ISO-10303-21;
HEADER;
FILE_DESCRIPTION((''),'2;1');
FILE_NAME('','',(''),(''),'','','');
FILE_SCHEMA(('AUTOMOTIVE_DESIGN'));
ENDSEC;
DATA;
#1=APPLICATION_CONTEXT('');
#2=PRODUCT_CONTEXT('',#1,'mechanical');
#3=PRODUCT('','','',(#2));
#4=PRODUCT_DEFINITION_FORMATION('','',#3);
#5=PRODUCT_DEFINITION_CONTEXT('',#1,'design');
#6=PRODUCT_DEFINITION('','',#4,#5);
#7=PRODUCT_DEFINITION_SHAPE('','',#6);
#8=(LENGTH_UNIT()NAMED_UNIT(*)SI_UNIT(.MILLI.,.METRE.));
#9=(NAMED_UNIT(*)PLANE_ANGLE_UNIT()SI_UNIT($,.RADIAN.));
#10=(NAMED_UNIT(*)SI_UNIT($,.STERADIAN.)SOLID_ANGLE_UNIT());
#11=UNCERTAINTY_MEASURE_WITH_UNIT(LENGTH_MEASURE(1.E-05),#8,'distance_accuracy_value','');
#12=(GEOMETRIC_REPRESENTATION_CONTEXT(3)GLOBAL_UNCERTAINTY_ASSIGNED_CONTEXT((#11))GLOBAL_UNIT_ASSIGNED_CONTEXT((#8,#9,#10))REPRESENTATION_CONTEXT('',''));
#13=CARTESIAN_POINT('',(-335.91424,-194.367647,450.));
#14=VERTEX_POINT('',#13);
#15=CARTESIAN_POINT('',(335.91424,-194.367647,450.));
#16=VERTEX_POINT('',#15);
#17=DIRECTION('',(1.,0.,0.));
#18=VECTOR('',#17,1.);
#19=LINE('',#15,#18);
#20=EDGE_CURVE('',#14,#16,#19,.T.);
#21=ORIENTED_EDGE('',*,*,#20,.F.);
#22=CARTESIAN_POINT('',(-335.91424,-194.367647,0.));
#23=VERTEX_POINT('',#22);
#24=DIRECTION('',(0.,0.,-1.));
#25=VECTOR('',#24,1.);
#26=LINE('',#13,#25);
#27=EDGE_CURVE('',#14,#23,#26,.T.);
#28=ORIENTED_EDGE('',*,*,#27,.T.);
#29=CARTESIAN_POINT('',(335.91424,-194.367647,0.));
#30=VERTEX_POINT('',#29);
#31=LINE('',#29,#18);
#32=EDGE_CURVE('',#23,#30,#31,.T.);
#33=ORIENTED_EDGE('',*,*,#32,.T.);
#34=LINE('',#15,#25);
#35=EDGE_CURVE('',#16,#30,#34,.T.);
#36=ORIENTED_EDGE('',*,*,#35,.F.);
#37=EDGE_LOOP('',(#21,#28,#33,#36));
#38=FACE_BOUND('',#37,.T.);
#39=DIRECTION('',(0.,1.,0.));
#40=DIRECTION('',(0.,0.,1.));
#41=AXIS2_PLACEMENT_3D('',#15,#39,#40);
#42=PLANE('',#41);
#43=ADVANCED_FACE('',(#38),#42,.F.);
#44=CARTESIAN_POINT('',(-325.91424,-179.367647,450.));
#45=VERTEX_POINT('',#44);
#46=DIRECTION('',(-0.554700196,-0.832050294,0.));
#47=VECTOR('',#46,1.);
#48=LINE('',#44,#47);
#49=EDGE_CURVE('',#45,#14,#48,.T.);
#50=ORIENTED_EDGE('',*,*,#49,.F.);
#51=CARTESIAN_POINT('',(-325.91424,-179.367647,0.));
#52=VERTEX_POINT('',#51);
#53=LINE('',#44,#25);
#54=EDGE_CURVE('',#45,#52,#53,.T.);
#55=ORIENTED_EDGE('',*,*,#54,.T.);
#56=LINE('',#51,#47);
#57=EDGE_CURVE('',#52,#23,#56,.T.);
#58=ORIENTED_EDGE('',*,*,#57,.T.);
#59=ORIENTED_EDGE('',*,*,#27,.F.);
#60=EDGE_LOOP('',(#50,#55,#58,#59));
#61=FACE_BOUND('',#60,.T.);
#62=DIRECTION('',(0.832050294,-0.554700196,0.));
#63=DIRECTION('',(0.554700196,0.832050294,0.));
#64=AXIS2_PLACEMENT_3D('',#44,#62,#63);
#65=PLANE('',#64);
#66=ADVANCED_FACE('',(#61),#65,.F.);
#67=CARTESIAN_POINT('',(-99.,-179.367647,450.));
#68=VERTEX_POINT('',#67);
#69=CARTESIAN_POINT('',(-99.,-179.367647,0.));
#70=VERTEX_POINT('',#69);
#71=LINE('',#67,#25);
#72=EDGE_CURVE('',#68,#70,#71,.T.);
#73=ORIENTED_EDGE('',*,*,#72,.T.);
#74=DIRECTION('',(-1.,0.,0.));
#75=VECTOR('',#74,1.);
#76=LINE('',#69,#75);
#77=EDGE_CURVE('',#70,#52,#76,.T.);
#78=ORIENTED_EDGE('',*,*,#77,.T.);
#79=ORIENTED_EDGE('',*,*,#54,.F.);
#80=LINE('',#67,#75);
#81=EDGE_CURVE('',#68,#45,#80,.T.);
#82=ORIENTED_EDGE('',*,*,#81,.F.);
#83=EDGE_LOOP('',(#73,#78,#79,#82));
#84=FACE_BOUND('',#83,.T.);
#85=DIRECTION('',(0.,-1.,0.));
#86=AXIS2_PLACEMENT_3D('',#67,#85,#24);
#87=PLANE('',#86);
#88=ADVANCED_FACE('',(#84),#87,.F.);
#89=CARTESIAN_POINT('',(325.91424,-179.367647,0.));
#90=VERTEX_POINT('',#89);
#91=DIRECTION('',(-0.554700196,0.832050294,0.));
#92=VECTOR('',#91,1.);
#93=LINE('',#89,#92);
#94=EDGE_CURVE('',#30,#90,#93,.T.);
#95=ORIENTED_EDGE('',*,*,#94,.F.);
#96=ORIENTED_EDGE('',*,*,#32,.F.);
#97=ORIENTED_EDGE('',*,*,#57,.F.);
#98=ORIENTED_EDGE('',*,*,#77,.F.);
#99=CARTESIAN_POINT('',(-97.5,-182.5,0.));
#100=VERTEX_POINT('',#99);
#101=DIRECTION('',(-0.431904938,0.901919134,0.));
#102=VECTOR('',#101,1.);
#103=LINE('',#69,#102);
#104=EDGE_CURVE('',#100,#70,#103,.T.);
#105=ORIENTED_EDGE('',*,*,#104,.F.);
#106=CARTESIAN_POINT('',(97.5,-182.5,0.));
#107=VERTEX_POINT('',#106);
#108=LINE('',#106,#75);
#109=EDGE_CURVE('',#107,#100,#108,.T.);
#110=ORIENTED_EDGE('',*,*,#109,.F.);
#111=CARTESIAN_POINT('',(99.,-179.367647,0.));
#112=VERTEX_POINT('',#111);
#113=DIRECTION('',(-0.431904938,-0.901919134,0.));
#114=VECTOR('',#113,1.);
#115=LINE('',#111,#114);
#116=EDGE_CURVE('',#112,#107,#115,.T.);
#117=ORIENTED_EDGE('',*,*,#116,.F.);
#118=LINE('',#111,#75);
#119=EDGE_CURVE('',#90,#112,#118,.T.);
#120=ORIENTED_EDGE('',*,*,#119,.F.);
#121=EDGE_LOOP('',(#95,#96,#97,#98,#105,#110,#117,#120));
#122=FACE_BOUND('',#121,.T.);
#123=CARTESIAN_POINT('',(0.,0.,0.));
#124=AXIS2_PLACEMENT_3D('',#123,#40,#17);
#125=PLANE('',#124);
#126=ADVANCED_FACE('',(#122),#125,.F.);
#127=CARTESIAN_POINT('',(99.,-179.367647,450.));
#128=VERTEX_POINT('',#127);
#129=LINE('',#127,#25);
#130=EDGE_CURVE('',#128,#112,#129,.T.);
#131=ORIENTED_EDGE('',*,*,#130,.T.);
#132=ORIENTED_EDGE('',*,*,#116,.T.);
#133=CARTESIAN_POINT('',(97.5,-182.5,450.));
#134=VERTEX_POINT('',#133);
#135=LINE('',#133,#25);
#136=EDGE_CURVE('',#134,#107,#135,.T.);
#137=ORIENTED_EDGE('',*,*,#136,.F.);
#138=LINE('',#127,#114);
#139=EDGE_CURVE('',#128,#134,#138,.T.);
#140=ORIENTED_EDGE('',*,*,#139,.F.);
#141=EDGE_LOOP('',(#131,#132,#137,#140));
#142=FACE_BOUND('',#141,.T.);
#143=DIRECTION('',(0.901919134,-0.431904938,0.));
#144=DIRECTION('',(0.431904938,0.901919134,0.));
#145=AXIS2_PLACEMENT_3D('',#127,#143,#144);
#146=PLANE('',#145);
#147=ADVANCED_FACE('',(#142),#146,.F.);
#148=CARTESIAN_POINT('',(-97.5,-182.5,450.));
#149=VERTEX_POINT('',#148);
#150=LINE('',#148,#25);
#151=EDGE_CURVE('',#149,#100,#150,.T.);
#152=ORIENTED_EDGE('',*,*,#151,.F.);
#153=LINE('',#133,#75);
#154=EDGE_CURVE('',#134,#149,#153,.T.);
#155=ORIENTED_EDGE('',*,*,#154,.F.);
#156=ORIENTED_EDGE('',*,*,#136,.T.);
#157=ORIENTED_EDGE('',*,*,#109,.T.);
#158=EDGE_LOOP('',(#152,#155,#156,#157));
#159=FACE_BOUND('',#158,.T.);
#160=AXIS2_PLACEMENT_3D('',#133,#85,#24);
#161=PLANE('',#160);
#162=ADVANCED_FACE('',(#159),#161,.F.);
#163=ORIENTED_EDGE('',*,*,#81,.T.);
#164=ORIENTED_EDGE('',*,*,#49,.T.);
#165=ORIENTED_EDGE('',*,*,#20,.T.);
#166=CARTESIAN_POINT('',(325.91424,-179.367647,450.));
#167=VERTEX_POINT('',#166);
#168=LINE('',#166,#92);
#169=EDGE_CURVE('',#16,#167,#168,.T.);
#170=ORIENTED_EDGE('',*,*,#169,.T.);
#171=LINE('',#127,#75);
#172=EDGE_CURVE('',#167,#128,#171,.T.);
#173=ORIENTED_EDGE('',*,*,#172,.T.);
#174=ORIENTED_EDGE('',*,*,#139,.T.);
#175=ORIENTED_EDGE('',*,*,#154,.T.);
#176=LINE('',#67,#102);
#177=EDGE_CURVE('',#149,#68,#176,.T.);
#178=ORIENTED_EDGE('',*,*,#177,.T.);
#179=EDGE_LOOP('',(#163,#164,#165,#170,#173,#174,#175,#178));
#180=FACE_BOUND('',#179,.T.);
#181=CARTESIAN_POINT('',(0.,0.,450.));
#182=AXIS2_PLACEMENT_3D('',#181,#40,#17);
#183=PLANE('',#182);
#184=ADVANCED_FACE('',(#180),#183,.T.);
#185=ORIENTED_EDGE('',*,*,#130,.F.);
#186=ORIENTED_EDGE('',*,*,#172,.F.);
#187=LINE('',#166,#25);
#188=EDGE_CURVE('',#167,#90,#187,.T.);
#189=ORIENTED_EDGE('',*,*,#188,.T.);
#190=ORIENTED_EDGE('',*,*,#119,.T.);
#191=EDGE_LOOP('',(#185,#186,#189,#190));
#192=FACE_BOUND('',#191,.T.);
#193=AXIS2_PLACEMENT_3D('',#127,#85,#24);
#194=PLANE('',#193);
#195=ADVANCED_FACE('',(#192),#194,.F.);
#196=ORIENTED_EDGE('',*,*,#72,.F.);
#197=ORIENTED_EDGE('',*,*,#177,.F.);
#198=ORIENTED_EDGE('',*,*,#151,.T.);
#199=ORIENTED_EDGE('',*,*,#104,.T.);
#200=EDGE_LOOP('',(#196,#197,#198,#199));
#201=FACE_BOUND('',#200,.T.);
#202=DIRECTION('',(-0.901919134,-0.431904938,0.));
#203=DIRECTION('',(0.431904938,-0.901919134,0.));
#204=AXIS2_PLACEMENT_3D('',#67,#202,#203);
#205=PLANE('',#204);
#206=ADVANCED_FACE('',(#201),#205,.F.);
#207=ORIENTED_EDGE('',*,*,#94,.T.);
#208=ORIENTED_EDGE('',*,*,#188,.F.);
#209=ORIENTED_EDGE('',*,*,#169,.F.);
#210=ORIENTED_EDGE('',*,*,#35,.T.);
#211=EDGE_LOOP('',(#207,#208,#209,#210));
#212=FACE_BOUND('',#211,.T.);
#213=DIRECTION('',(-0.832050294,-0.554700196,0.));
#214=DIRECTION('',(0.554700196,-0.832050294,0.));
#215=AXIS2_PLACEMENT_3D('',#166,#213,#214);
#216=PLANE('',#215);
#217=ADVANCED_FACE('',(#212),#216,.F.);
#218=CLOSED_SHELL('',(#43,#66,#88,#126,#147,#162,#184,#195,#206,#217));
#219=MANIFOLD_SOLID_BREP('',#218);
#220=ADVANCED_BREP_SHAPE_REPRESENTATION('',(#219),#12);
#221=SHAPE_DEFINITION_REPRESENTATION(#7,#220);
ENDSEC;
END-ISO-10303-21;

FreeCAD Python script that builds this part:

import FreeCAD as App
import Part
import Sketcher
from FreeCAD import Vector
Q = App.Units.Quantity

doc = App.newDocument("Part")
params = doc.addObject("Spreadsheet::Sheet", "Params")
for row, (alias, value) in enumerate([
    ("sketch1_width", "195 mm"),
    ("pad1_length", "450 mm"),
], start=1):
    params.set(f"A{row}", alias)
    params.set(f"B{row}", "=" + value)
    params.setAlias(f"B{row}", alias)

body = doc.addObject("PartDesign::Body", "Body")

# Sketch on XY plane
sketch1 = body.newObject("Sketcher::SketchObject", "Sketch")
sketch1.AttachmentSupport = (doc.getObject("XY_Plane"), [""])
sketch1.MapMode = "FlatFace"
sketch1.addGeometry(Part.LineSegment(Vector(-325.9, -179.4, 0), Vector(-335.9, -194.4, 0)), False)
sketch1.addGeometry(Part.LineSegment(Vector(-335.9, -194.4, 0), Vector(335.9, -194.4, 0)), False)
sketch1.addGeometry(Part.LineSegment(Vector(335.9, -194.4, 0), Vector(325.9, -179.4, 0)), False)
sketch1.addGeometry(Part.LineSegment(Vector(325.9, -179.4, 0), Vector(99, -179.4, 0)), False)
sketch1.addGeometry(Part.LineSegment(Vector(99, -179.4, 0), Vector(97.5, -182.5, 0)), False)
sketch1.addGeometry(Part.LineSegment(Vector(97.5, -182.5, 0), Vector(-97.5, -182.5, 0)), False)
sketch1.addGeometry(Part.LineSegment(Vector(-97.5, -182.5, 0), Vector(-99, -179.4, 0)), False)
sketch1.addGeometry(Part.LineSegment(Vector(-99, -179.4, 0), Vector(-325.9, -179.4, 0)), False)
sketch1.addConstraint(Sketcher.Constraint("Coincident", 0, 2, 1, 1))
sketch1.addConstraint(Sketcher.Constraint("Coincident", 1, 2, 2, 1))
sketch1.addConstraint(Sketcher.Constraint("Coincident", 2, 2, 3, 1))
sketch1.addConstraint(Sketcher.Constraint("Coincident", 3, 2, 4, 1))
sketch1.addConstraint(Sketcher.Constraint("Coincident", 4, 2, 5, 1))
sketch1.addConstraint(Sketcher.Constraint("Coincident", 5, 2, 6, 1))
sketch1.addConstraint(Sketcher.Constraint("Coincident", 6, 2, 7, 1))
sketch1.addConstraint(Sketcher.Constraint("Coincident", 7, 2, 0, 1))
sketch1.addConstraint(Sketcher.Constraint("Horizontal", 1))
sketch1.addConstraint(Sketcher.Constraint("Horizontal", 3))
sketch1.addConstraint(Sketcher.Constraint("Horizontal", 5))
sketch1.addConstraint(Sketcher.Constraint("Horizontal", 7))
sketch1.addConstraint(Sketcher.Constraint("Symmetric", 3, 2, 6, 2, -2))
sketch1.addConstraint(Sketcher.Constraint("Equal", 3, 7))
sketch1.addConstraint(Sketcher.Constraint("Equal", 0, 2))
sketch1.addConstraint(Sketcher.Constraint("Equal", 4, 6))
sketch1.addConstraint(Sketcher.Constraint("DistanceX", 5, 2, 5, 1, Q("195 mm")))
sketch1.addConstraint(Sketcher.Constraint("DistanceX", -1, 1, 3, 2, Q("99 mm")))
sketch1.addConstraint(Sketcher.Constraint("DistanceX", 2, 2, 1, 2, Q("10 mm")))
sketch1.addConstraint(Sketcher.Constraint("DistanceY", 1, 2, 2, 2, Q("15 mm")))
sketch1.addConstraint(Sketcher.Constraint("DistanceY", 4, 2, -1, 1, Q("182.5 mm")))
sketch1.addConstraint(Sketcher.Constraint("DistanceX", 1, 1, 1, 2, Q("671.82848 mm")))
sketch1.addConstraint(Sketcher.Constraint("Distance", 4, Q("3.472986 mm")))
sketch1.setExpression("Constraints[16]", "Params.sketch1_width")
pad1 = body.newObject("PartDesign::Pad", "Pad")
pad1.Profile = sketch1
pad1.setExpression("Length", "Params.pad1_length")

doc.recompute()
